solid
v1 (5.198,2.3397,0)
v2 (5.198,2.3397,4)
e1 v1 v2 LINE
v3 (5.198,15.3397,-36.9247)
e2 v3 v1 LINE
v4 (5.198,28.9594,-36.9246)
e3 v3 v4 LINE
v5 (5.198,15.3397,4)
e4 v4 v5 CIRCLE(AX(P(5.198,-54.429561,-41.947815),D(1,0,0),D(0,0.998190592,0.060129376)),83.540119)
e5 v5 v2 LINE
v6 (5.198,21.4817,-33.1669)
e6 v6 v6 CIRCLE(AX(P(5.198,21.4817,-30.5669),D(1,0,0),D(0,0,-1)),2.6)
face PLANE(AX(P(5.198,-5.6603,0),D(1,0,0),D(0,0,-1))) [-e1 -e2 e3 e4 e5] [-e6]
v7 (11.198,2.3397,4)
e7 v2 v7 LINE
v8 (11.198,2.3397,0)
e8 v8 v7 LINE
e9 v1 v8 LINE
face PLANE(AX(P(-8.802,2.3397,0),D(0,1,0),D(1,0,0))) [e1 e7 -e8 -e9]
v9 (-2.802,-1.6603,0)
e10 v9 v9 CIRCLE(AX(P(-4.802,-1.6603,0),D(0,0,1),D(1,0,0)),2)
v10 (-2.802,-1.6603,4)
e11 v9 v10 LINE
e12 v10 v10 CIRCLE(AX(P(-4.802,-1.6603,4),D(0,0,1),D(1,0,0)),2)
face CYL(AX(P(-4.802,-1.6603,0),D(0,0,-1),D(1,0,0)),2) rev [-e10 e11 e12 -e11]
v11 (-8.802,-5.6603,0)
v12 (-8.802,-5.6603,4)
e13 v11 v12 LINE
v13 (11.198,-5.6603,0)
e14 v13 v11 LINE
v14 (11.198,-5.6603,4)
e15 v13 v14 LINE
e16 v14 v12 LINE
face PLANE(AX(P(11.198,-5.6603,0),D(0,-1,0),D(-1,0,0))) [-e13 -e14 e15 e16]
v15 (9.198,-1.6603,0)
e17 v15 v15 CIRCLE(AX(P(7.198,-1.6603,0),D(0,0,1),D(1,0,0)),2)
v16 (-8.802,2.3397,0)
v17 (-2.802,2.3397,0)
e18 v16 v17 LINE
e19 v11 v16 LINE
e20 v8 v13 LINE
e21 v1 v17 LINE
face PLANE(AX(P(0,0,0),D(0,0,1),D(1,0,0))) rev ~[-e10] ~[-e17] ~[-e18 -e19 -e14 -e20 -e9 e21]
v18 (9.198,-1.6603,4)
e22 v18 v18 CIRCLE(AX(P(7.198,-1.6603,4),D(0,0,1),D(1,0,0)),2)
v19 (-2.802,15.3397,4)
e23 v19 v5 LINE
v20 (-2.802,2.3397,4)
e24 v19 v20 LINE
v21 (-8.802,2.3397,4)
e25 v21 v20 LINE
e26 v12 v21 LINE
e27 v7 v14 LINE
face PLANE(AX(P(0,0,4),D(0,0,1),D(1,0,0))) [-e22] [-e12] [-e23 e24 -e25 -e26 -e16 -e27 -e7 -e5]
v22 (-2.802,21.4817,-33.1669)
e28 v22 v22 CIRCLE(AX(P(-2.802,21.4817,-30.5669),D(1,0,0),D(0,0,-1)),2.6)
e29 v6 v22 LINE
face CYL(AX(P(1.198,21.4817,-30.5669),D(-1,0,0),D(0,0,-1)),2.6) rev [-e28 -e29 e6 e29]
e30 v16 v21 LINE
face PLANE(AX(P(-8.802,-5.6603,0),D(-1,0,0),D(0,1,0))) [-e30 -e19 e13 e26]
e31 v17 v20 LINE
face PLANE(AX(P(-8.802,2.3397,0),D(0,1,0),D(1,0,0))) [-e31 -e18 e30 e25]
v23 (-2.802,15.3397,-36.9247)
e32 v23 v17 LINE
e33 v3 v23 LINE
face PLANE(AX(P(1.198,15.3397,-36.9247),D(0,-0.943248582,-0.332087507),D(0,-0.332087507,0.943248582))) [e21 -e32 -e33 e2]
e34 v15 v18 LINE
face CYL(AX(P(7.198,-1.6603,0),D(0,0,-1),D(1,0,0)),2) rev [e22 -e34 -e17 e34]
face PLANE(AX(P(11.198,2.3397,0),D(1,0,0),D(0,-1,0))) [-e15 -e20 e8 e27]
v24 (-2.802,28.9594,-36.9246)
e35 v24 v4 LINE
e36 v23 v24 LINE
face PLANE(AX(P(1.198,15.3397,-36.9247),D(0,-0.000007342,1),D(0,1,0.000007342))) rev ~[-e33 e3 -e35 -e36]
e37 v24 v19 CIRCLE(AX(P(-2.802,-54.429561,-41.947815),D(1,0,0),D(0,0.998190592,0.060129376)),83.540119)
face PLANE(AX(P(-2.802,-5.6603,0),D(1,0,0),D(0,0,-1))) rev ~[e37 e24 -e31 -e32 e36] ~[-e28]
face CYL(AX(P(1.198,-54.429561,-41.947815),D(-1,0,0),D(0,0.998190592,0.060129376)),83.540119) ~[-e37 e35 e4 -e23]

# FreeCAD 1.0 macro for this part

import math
import FreeCAD as App
import Part
import Sketcher

V = App.Vector
Q = App.Units.Quantity

doc = App.newDocument("Part")
params = doc.addObject("Spreadsheet::Sheet", "Params")
for row, (alias, value) in enumerate([
    ("sketch1_diameter", "4 mm"),
    ("sketch1_width", "20 mm"),
    ("sketch1_height", "8 mm"),
    ("pad1_length", "4 mm"),
    ("sketch2_diameter", "5.2 mm"),
    ("sketch2_width", "13 mm"),
    ("sketch2_height", "4 mm"),
    ("pad2_length", "8 mm"),
], start=1):
    params.set(f"A{row}", alias)
    params.set(f"B{row}", "=" + value)
    params.setAlias(f"B{row}", alias)

body = doc.addObject("PartDesign::Body", "Body")

sketch1 = body.newObject("Sketcher::SketchObject", "Sketch")
sketch1.AttachmentSupport = (doc.getObject("XY_Plane"), [""])
sketch1.MapMode = "FlatFace"
sketch1.addGeometry([
    Part.LineSegment(V(11.198, 2.3397, 0), V(-8.802, 2.3397, 0)),
    Part.LineSegment(V(-8.802, 2.3397, 0), V(-8.802, -5.6603, 0)),
    Part.LineSegment(V(-8.802, -5.6603, 0), V(11.198, -5.6603, 0)),
    Part.LineSegment(V(11.198, -5.6603, 0), V(11.198, 2.3397, 0)),
    Part.Circle(V(-4.802, -1.6603, 0), V(0, 0, 1), 2),
    Part.Circle(V(7.198, -1.6603, 0), V(0, 0, 1), 2),
], False)
sketch1.addConstraint([
    Sketcher.Constraint("Coincident", 0, 2, 1, 1),
    Sketcher.Constraint("Coincident", 1, 2, 2, 1),
    Sketcher.Constraint("Coincident", 2, 2, 3, 1),
    Sketcher.Constraint("Coincident", 3, 2, 0, 1),
    Sketcher.Constraint("Horizontal", 0),
    Sketcher.Constraint("Vertical", 1),
    Sketcher.Constraint("Horizontal", 2),
    Sketcher.Constraint("Vertical", 3),
    Sketcher.Constraint("Equal", 4, 5),
    Sketcher.Constraint("Horizontal", 4, 3, 5, 3),
    Sketcher.Constraint("Diameter", 4, Q("4 mm")),
    Sketcher.Constraint("DistanceX", 0, 2, 0, 1, Q("20 mm")),
    Sketcher.Constraint("DistanceY", 1, 2, 1, 1, Q("8 mm")),
    Sketcher.Constraint("DistanceX", 4, 3, 5, 3, Q("12 mm")),
    Sketcher.Constraint("DistanceX", 0, 2, 4, 3, Q("4 mm")),
    Sketcher.Constraint("DistanceY", 4, 3, 0, 2, Q("4 mm")),
    Sketcher.Constraint("DistanceX", 4, 3, -1, 1, Q("4.802 mm")),
    Sketcher.Constraint("DistanceY", 4, 3, -1, 1, Q("1.6603 mm")),
])
sketch1.setExpression("Constraints[10]", "Params.sketch1_diameter")
sketch1.setExpression("Constraints[11]", "Params.sketch1_width")
sketch1.setExpression("Constraints[12]", "Params.sketch1_height")
pad1 = body.newObject("PartDesign::Pad", "Pad")
pad1.Profile = sketch1
pad1.setExpression("Length", "Params.pad1_length")

sketch2 = body.newObject("Sketcher::SketchObject", "Sketch001")
sketch2.AttachmentSupport = (doc.getObject("YZ_Plane"), [""])
sketch2.MapMode = "FlatFace"
sketch2.AttachmentOffset = App.Placement(V(0, 0, 1.198), App.Rotation())
sketch2.addGeometry([
    Part.LineSegment(V(15.3397, -36.9247, 0), V(28.9594, -36.9246, 0)),
    Part.ArcOfCircle(Part.Circle(V(-54.43, -41.9479, 0), V(0, 0, 1), 83.540562), math.radians(3.447279), math.radians(33.367512)),
    Part.LineSegment(V(15.3397, 4, 0), V(2.3397, 4, 0)),
    Part.LineSegment(V(2.3397, 4, 0), V(2.3397, 0, 0)),
    Part.LineSegment(V(2.3397, 0, 0), V(15.3397, -36.9247, 0)),
    Part.Circle(V(21.4817, -30.5669, 0), V(0, 0, 1), 2.6),
], False)
sketch2.addConstraint([
    Sketcher.Constraint("Coincident", 0, 2, 1, 1),
    Sketcher.Constraint("Coincident", 1, 2, 2, 1),
    Sketcher.Constraint("Coincident", 2, 2, 3, 1),
    Sketcher.Constraint("Coincident", 3, 2, 4, 1),
    Sketcher.Constraint("Coincident", 4, 2, 0, 1),
    Sketcher.Constraint("Horizontal", 0),
    Sketcher.Constraint("Horizontal", 2),
    Sketcher.Constraint("Vertical", 3),
    Sketcher.Constraint("PointOnObject", 3, 2, -1),
    Sketcher.Constraint("Vertical", 1, 2, 4, 2),
    Sketcher.Constraint("Diameter", 5, Q("5.2 mm")),
    Sketcher.Constraint("DistanceX", 2, 2, 2, 1, Q("13 mm")),
    Sketcher.Constraint("DistanceY", 3, 2, 3, 1, Q("4 mm")),
    Sketcher.Constraint("DistanceX", 0, 1, 0, 2, Q("13.6197 mm")),
    Sketcher.Constraint("DistanceX", 1, 2, 5, 3, Q("6.142 mm")),
    Sketcher.Constraint("DistanceY", 5, 3, 1, 2, Q("34.567 mm")),
    Sketcher.Constraint("Radius", 1, Q("83.5406 mm")),
    Sketcher.Constraint("DistanceX", 1, 3, -1, 1, Q("54.43 mm")),
    Sketcher.Constraint("DistanceY", 1, 3, -1, 1, Q("41.948 mm")),
])
sketch2.setExpression("Constraints[10]", "Params.sketch2_diameter")
sketch2.setExpression("Constraints[11]", "Params.sketch2_width")
sketch2.setExpression("Constraints[12]", "Params.sketch2_height")
pad2 = body.newObject("PartDesign::Pad", "Pad001")
pad2.Profile = sketch2
pad2.setExpression("Length", "Params.pad2_length")
pad2.Midplane = True

doc.recompute()
